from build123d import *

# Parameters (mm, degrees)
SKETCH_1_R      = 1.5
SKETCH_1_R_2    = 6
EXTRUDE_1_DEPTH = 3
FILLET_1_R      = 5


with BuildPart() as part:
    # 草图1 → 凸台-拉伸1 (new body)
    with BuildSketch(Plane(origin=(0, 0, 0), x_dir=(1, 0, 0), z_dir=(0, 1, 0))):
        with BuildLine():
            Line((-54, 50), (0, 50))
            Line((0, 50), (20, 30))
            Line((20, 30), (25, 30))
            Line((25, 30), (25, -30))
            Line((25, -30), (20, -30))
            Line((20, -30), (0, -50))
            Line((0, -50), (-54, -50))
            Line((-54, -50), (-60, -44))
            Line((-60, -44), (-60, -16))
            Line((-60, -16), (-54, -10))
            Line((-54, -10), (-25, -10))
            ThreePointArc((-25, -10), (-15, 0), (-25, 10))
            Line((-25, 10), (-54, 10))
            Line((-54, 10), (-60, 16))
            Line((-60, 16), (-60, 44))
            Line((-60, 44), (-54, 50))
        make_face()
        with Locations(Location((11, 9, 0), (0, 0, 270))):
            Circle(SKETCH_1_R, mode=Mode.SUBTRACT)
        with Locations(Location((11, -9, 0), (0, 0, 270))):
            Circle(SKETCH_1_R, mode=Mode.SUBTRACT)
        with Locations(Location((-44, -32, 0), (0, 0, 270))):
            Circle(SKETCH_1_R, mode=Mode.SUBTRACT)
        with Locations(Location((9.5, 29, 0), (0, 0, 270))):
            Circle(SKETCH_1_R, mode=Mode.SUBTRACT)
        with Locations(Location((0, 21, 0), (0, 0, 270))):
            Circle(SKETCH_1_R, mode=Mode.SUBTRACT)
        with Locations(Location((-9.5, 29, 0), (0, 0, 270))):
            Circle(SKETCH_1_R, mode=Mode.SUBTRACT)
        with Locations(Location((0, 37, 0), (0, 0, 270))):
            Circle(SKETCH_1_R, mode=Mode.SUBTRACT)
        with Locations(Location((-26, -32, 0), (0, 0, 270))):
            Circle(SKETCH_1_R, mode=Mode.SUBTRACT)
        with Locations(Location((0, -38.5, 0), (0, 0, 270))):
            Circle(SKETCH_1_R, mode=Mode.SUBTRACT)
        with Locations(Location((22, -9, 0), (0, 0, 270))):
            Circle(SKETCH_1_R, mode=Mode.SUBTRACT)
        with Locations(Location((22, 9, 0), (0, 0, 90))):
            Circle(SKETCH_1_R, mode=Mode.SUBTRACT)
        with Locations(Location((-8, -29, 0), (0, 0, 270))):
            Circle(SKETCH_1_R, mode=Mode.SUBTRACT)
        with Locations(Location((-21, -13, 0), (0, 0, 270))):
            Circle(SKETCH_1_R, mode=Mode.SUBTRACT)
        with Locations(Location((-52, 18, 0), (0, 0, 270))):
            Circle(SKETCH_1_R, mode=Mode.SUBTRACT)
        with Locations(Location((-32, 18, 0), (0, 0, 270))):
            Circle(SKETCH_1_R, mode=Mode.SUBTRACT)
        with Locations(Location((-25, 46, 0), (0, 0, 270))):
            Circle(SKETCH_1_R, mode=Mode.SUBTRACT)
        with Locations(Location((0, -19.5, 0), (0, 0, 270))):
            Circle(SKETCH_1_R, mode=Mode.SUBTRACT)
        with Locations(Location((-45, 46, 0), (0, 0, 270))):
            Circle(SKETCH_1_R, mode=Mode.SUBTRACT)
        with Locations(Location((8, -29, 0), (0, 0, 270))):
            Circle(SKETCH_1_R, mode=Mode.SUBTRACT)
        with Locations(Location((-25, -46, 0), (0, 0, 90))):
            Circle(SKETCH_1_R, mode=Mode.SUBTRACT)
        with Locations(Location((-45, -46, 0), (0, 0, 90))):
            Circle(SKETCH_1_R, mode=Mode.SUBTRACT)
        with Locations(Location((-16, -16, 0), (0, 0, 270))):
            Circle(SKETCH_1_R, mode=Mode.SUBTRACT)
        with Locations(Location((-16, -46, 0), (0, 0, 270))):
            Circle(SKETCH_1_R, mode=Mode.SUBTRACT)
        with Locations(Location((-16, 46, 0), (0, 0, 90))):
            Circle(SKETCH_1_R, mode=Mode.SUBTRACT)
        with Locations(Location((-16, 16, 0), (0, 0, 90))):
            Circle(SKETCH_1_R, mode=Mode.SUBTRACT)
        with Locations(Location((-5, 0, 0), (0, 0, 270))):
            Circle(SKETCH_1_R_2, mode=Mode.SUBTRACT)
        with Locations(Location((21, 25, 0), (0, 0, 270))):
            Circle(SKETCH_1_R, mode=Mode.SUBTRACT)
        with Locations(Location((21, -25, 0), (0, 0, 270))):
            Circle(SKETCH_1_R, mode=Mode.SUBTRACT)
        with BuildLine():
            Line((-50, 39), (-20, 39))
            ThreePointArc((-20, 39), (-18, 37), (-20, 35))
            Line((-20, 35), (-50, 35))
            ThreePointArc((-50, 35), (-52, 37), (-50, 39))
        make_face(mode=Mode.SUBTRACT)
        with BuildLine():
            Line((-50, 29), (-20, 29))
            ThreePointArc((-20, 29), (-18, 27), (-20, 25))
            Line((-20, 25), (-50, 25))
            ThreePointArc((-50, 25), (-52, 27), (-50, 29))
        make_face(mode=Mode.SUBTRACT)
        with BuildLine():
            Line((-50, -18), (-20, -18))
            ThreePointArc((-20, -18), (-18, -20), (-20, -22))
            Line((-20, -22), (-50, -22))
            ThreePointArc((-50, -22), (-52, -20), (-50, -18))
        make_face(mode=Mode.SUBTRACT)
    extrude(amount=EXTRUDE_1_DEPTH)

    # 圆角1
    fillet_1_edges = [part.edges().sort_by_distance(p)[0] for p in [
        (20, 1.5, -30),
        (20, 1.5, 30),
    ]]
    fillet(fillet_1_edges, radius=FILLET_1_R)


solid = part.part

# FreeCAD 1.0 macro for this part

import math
import FreeCAD as App
import Part
import Sketcher


def edges_at(feature, points):
    """Names of the edges that pass closest to the given points."""
    edges = feature.Shape.Edges
    near = lambda p: min(range(len(edges)), key=lambda i: edges[i].distToShape(Part.Vertex(*p))[0])
    return sorted({f"Edge{near(p) + 1}" for p in points})

doc = App.newDocument("Part")
body = doc.addObject("PartDesign::Body", "Body")

sketch1 = body.newObject("Sketcher::SketchObject", "Sketch")
sketch1.AttachmentSupport = (doc.getObject("XZ_Plane"), [""])
sketch1.MapMode = "FlatFace"
sketch1.addGeometry([
    Part.LineSegment(App.Vector(0, -50, 0), App.Vector(-54, -50, 0)),
    Part.LineSegment(App.Vector(-54, -50, 0), App.Vector(-60, -44, 0)),
    Part.LineSegment(App.Vector(-60, -44, 0), App.Vector(-60, -16, 0)),
    Part.LineSegment(App.Vector(-60, -16, 0), App.Vector(-54, -10, 0)),
    Part.LineSegment(App.Vector(-54, -10, 0), App.Vector(-25, -10, 0)),
    Part.ArcOfCircle(Part.Circle(App.Vector(-25, 0, 0), App.Vector(0, 0, 1), 10), math.radians(-90), math.radians(90)),
    Part.LineSegment(App.Vector(-25, 10, 0), App.Vector(-54, 10, 0)),
    Part.LineSegment(App.Vector(-54, 10, 0), App.Vector(-60, 16, 0)),
    Part.LineSegment(App.Vector(-60, 16, 0), App.Vector(-60, 44, 0)),
    Part.LineSegment(App.Vector(-60, 44, 0), App.Vector(-54, 50, 0)),
    Part.LineSegment(App.Vector(-54, 50, 0), App.Vector(0, 50, 0)),
    Part.LineSegment(App.Vector(0, 50, 0), App.Vector(20, 30, 0)),
    Part.LineSegment(App.Vector(20, 30, 0), App.Vector(25, 30, 0)),
    Part.LineSegment(App.Vector(25, 30, 0), App.Vector(25, -30, 0)),
    Part.LineSegment(App.Vector(25, -30, 0), App.Vector(20, -30, 0)),
    Part.LineSegment(App.Vector(20, -30, 0), App.Vector(0, -50, 0)),
    Part.Circle(App.Vector(21, 25, 0), App.Vector(0, 0, 1), 1.5),
    Part.Circle(App.Vector(8, 29, 0), App.Vector(0, 0, 1), 1.5),
    Part.Circle(App.Vector(0, 38.5, 0), App.Vector(0, 0, 1), 1.5),
    Part.Circle(App.Vector(-8, 29, 0), App.Vector(0, 0, 1), 1.5),
    Part.Circle(App.Vector(22, 9, 0), App.Vector(0, 0, 1), 1.5),
    Part.Circle(App.Vector(11, 9, 0), App.Vector(0, 0, 1), 1.5),
    Part.Circle(App.Vector(0, 19.5, 0), App.Vector(0, 0, 1), 1.5),
    Part.Circle(App.Vector(-16, 46, 0), App.Vector(0, 0, 1), 1.5),
    Part.Circle(App.Vector(-25, 46, 0), App.Vector(0, 0, 1), 1.5),
    Part.Circle(App.Vector(-26, 32, 0), App.Vector(0, 0, 1), 1.5),
    Part.Circle(App.Vector(-45, 46, 0), App.Vector(0, 0, 1), 1.5),
    Part.Circle(App.Vector(-44, 32, 0), App.Vector(0, 0, 1), 1.5),
    Part.Circle(App.Vector(-16, 16, 0), App.Vector(0, 0, 1), 1.5),
    Part.Circle(App.Vector(-21, 13, 0), App.Vector(0, 0, 1), 1.5),
    Part.LineSegment(App.Vector(-50, 18, 0), App.Vector(-20, 18, 0)),
    Part.ArcOfCircle(Part.Circle(App.Vector(-20, 20, 0), App.Vector(0, 0, 1), 2), math.radians(-90), math.radians(90)),
    Part.LineSegment(App.Vector(-20, 22, 0), App.Vector(-50, 22, 0)),
    Part.ArcOfCircle(Part.Circle(App.Vector(-50, 20, 0), App.Vector(0, 0, 1), 2), math.radians(90), math.radians(270)),
    Part.Circle(App.Vector(22, -9, 0), App.Vector(0, 0, 1), 1.5),
    Part.Circle(App.Vector(11, -9, 0), App.Vector(0, 0, 1), 1.5),
    Part.Circle(App.Vector(-5, 0, 0), App.Vector(0, 0, 1), 6),
    Part.Circle(App.Vector(0, -21, 0), App.Vector(0, 0, 1), 1.5),
    Part.Circle(App.Vector(21, -25, 0), App.Vector(0, 0, 1), 1.5),
    Part.Circle(App.Vector(9.5, -29, 0), App.Vector(0, 0, 1), 1.5),
    Part.Circle(App.Vector(-9.5, -29, 0), App.Vector(0, 0, 1), 1.5),
    Part.Circle(App.Vector(0, -37, 0), App.Vector(0, 0, 1), 1.5),
    Part.Circle(App.Vector(-16, -16, 0), App.Vector(0, 0, 1), 1.5),
    Part.Circle(App.Vector(-32, -18, 0), App.Vector(0, 0, 1), 1.5),
    Part.Circle(App.Vector(-52, -18, 0), App.Vector(0, 0, 1), 1.5),
    Part.Circle(App.Vector(-16, -46, 0), App.Vector(0, 0, 1), 1.5),
    Part.Circle(App.Vector(-25, -46, 0), App.Vector(0, 0, 1), 1.5),
    Part.LineSegment(App.Vector(-50, -29, 0), App.Vector(-20, -29, 0)),
    Part.ArcOfCircle(Part.Circle(App.Vector(-20, -27, 0), App.Vector(0, 0, 1), 2), math.radians(-90), math.radians(90)),
    Part.LineSegment(App.Vector(-20, -25, 0), App.Vector(-50, -25, 0)),
    Part.ArcOfCircle(Part.Circle(App.Vector(-50, -27, 0), App.Vector(0, 0, 1), 2), math.radians(90), math.radians(270)),
    Part.LineSegment(App.Vector(-50, -39, 0), App.Vector(-20, -39, 0)),
    Part.ArcOfCircle(Part.Circle(App.Vector(-20, -37, 0), App.Vector(0, 0, 1), 2), math.radians(-90), math.radians(90)),
    Part.LineSegment(App.Vector(-20, -35, 0), App.Vector(-50, -35, 0)),
    Part.ArcOfCircle(Part.Circle(App.Vector(-50, -37, 0), App.Vector(0, 0, 1), 2), math.radians(90), math.radians(270)),
    Part.Circle(App.Vector(-45, -46, 0), App.Vector(0, 0, 1), 1.5),
], False)
sketch1.addConstraint([
    Sketcher.Constraint("Coincident", 0, 2, 1, 1),
    Sketcher.Constraint("Coincident", 1, 2, 2, 1),
    Sketcher.Constraint("Coincident", 2, 2, 3, 1),
    Sketcher.Constraint("Coincident", 3, 2, 4, 1),
    Sketcher.Constraint("Tangent", 4, 2, 5, 1),
    Sketcher.Constraint("Tangent", 5, 2, 6, 1),
    Sketcher.Constraint("Coincident", 6, 2, 7, 1),
    Sketcher.Constraint("Coincident", 7, 2, 8, 1),
    Sketcher.Constraint("Coincident", 8, 2, 9, 1),
    Sketcher.Constraint("Coincident", 9, 2, 10, 1),
    Sketcher.Constraint("Coincident", 10, 2, 11, 1),
    Sketcher.Constraint("Coincident", 11, 2, 12, 1),
    Sketcher.Constraint("Coincident", 12, 2, 13, 1),
    Sketcher.Constraint("Coincident", 13, 2, 14, 1),
    Sketcher.Constraint("Coincident", 14, 2, 15, 1),
    Sketcher.Constraint("Coincident", 15, 2, 0, 1),
    Sketcher.Constraint("Tangent", 30, 2, 31, 1),
    Sketcher.Constraint("Tangent", 31, 2, 32, 1),
    Sketcher.Constraint("Tangent", 32, 2, 33, 1),
    Sketcher.Constraint("Tangent", 33, 2, 30, 1),
    Sketcher.Constraint("Tangent", 47, 2, 48, 1),
    Sketcher.Constraint("Tangent", 48, 2, 49, 1),
    Sketcher.Constraint("Tangent", 49, 2, 50, 1),
    Sketcher.Constraint("Tangent", 50, 2, 47, 1),
    Sketcher.Constraint("Tangent", 51, 2, 52, 1),
    Sketcher.Constraint("Tangent", 52, 2, 53, 1),
    Sketcher.Constraint("Tangent", 53, 2, 54, 1),
    Sketcher.Constraint("Tangent", 54, 2, 51, 1),
    Sketcher.Constraint("Horizontal", 0),
    Sketcher.Constraint("Vertical", 2),
    Sketcher.Constraint("Horizontal", 4),
    Sketcher.Constraint("Horizontal", 6),
    Sketcher.Constraint("Vertical", 8),
    Sketcher.Constraint("Horizontal", 10),
    Sketcher.Constraint("Horizontal", 12),
    Sketcher.Constraint("Vertical", 13),
    Sketcher.Constraint("Horizontal", 14),
    Sketcher.Constraint("Horizontal", 30),
    Sketcher.Constraint("Horizontal", 32),
    Sketcher.Constraint("Horizontal", 47),
    Sketcher.Constraint("Horizontal", 49),
    Sketcher.Constraint("Horizontal", 51),
    Sketcher.Constraint("Horizontal", 53),
    Sketcher.Constraint("Equal", 16, 17),
    Sketcher.Constraint("Equal", 17, 18),
    Sketcher.Constraint("Equal", 18, 19),
    Sketcher.Constraint("Equal", 19, 20),
    Sketcher.Constraint("Equal", 20, 21),
    Sketcher.Constraint("Equal", 21, 22),
    Sketcher.Constraint("Equal", 22, 23),
    Sketcher.Constraint("Equal", 23, 24),
    Sketcher.Constraint("Equal", 24, 25),
    Sketcher.Constraint("Equal", 25, 26),
    Sketcher.Constraint("Equal", 26, 27),
    Sketcher.Constraint("Equal", 27, 28),
    Sketcher.Constraint("Equal", 28, 29),
    Sketcher.Constraint("Equal", 29, 34),
    Sketcher.Constraint("Equal", 34, 35),
    Sketcher.Constraint("Equal", 35, 37),
    Sketcher.Constraint("Equal", 37, 38),
    Sketcher.Constraint("Equal", 38, 39),
    Sketcher.Constraint("Equal", 39, 40),
    Sketcher.Constraint("Equal", 40, 41),
    Sketcher.Constraint("Equal", 41, 42),
    Sketcher.Constraint("Equal", 42, 43),
    Sketcher.Constraint("Equal", 43, 44),
    Sketcher.Constraint("Equal", 44, 45),
    Sketcher.Constraint("Equal", 45, 46),
    Sketcher.Constraint("Equal", 33, 48),
    Sketcher.Constraint("Equal", 50, 52),
    Sketcher.Constraint("Equal", 46, 55),
    Sketcher.Constraint("Symmetric", 10, 2, 15, 2, -1, 1),
    Sketcher.Constraint("Symmetric", 17, 3, 19, 3, -2),
    Sketcher.Constraint("Symmetric", 39, 3, 40, 3, -2),
    Sketcher.Constraint("Symmetric", 20, 3, 34, 3, -1),
    Sketcher.Constraint("Symmetric", 21, 3, 35, 3, -1),
    Sketcher.Constraint("Symmetric", 16, 3, 38, 3, -1),
    Sketcher.Constraint("Symmetric", 28, 3, 42, 3, -1),
    Sketcher.Constraint("Symmetric", 23, 3, 45, 3, -1),
    Sketcher.Constraint("Symmetric", 24, 3, 46, 3, -1),
    Sketcher.Constraint("Symmetric", 26, 3, 55, 3, -1),
    Sketcher.Constraint("Symmetric", 3, 2, 6, 2, -1),
    Sketcher.Constraint("Symmetric", 2, 2, 7, 2, -1),
    Sketcher.Constraint("Symmetric", 11, 2, 14, 2, -1),
    Sketcher.Constraint("PointOnObject", 18, 3, -2),
    Sketcher.Constraint("PointOnObject", 22, 3, -2),
    Sketcher.Constraint("PointOnObject", 36, 3, -1),
    Sketcher.Constraint("PointOnObject", 37, 3, -2),
    Sketcher.Constraint("PointOnObject", 41, 3, -2),
    Sketcher.Constraint("PointOnObject", 10, 2, -2),
    Sketcher.Constraint("Perpendicular", 1, 3),
    Sketcher.Constraint("Perpendicular", 3, 7),
    Sketcher.Constraint("Perpendicular", 7, 9),
    Sketcher.Constraint("Perpendicular", 9, 11),
    Sketcher.Constraint("Horizontal", 20, 3, 21, 3),
    Sketcher.Constraint("Horizontal", 23, 3, 24, 3),
    Sketcher.Constraint("Horizontal", 24, 3, 26, 3),
    Sketcher.Constraint("Horizontal", 25, 3, 27, 3),
    Sketcher.Constraint("Horizontal", 43, 3, 44, 3),
    Sketcher.Constraint("Horizontal", 41, 3, 52, 3),
    Sketcher.Constraint("Horizontal", 42, 3, 2, 2),
    Sketcher.Constraint("Horizontal", 40, 3, 47, 2),
    Sketcher.Constraint("Horizontal", 38, 3, 48, 2),
    Sketcher.Constraint("Vertical", 5, 3, 24, 3),
    Sketcher.Constraint("Vertical", 23, 3, 28, 3),
    Sketcher.Constraint("Vertical", 31, 3, 48, 3),
    Sketcher.Constraint("Vertical", 33, 3, 50, 3),
    Sketcher.Constraint("Vertical", 48, 3, 52, 3),
    Sketcher.Constraint("Vertical", 50, 3, 54, 3),
    Sketcher.Constraint("Vertical", 0, 2, 3, 2),
    Sketcher.Constraint("Vertical", 6, 2, 9, 2),
    Sketcher.Constraint("Diameter", 16, 3.0),
    Sketcher.Constraint("Diameter", 36, 12.0),
    Sketcher.Constraint("Radius", 5, 10.0),
    Sketcher.Constraint("Radius", 31, 2.0),
    Sketcher.Constraint("DistanceX", 0, 2, 0, 1, 54.0),
    Sketcher.Constraint("DistanceX", 4, 1, 4, 2, 29.0),
    Sketcher.Constraint("DistanceX", 12, 1, 12, 2, 5.0),
    Sketcher.Constraint("DistanceX", 30, 1, 30, 2, 30.0),
    Sketcher.Constraint("DistanceY", 2, 1, 2, 2, 28.0),
    Sketcher.Constraint("DistanceY", 13, 2, 13, 1, 60.0),
    Sketcher.Constraint("DistanceX", -1, 1, 16, 3, 21.0),
    Sketcher.Constraint("DistanceY", -1, 1, 16, 3, 25.0),
    Sketcher.Constraint("DistanceX", -1, 1, 17, 3, 8.0),
    Sketcher.Constraint("DistanceY", -1, 1, 17, 3, 29.0),
    Sketcher.Constraint("DistanceX", -1, 1, 20, 3, 22.0),
    Sketcher.Constraint("DistanceY", -1, 1, 20, 3, 9.0),
    Sketcher.Constraint("DistanceX", -1, 1, 21, 3, 11.0),
    Sketcher.Constraint("DistanceX", 23, 3, -1, 1, 16.0),
    Sketcher.Constraint("DistanceY", -1, 1, 23, 3, 46.0),
    Sketcher.Constraint("DistanceX", 25, 3, -1, 1, 26.0),
    Sketcher.Constraint("DistanceY", -1, 1, 25, 3, 32.0),
    Sketcher.Constraint("DistanceX", 26, 3, -1, 1, 45.0),
    Sketcher.Constraint("DistanceX", 27, 3, -1, 1, 44.0),
    Sketcher.Constraint("DistanceY", -1, 1, 28, 3, 16.0),
    Sketcher.Constraint("DistanceX", 29, 3, -1, 1, 21.0),
    Sketcher.Constraint("DistanceY", -1, 1, 29, 3, 13.0),
    Sketcher.Constraint("DistanceX", 31, 3, -1, 1, 20.0),
    Sketcher.Constraint("DistanceY", -1, 1, 31, 3, 20.0),
    Sketcher.Constraint("DistanceX", 36, 3, -1, 1, 5.0),
    Sketcher.Constraint("DistanceY", 37, 3, -1, 1, 21.0),
    Sketcher.Constraint("DistanceY", 41, 3, -1, 1, 37.0),
    Sketcher.Constraint("DistanceX", 43, 3, -1, 1, 32.0),
    Sketcher.Constraint("DistanceY", 43, 3, -1, 1, 18.0),
    Sketcher.Constraint("DistanceX", 44, 3, -1, 1, 52.0),
    Sketcher.Constraint("DistanceY", -1, 1, 18, 3, 38.5),
    Sketcher.Constraint("DistanceY", -1, 1, 22, 3, 19.5),
    Sketcher.Constraint("DistanceX", -1, 1, 39, 3, 9.5),
])
pad1 = body.newObject("PartDesign::Pad", "Pad")
pad1.Profile = sketch1
pad1.Length = 3
pad1.Reversed = True
doc.recompute()

fillet = body.newObject("PartDesign::Fillet", "Fillet")
fillet.Base = (pad1, edges_at(pad1, [(20, 1.5, -30), (20, 1.5, 30)]))
fillet.Radius = 5

doc.recompute()
